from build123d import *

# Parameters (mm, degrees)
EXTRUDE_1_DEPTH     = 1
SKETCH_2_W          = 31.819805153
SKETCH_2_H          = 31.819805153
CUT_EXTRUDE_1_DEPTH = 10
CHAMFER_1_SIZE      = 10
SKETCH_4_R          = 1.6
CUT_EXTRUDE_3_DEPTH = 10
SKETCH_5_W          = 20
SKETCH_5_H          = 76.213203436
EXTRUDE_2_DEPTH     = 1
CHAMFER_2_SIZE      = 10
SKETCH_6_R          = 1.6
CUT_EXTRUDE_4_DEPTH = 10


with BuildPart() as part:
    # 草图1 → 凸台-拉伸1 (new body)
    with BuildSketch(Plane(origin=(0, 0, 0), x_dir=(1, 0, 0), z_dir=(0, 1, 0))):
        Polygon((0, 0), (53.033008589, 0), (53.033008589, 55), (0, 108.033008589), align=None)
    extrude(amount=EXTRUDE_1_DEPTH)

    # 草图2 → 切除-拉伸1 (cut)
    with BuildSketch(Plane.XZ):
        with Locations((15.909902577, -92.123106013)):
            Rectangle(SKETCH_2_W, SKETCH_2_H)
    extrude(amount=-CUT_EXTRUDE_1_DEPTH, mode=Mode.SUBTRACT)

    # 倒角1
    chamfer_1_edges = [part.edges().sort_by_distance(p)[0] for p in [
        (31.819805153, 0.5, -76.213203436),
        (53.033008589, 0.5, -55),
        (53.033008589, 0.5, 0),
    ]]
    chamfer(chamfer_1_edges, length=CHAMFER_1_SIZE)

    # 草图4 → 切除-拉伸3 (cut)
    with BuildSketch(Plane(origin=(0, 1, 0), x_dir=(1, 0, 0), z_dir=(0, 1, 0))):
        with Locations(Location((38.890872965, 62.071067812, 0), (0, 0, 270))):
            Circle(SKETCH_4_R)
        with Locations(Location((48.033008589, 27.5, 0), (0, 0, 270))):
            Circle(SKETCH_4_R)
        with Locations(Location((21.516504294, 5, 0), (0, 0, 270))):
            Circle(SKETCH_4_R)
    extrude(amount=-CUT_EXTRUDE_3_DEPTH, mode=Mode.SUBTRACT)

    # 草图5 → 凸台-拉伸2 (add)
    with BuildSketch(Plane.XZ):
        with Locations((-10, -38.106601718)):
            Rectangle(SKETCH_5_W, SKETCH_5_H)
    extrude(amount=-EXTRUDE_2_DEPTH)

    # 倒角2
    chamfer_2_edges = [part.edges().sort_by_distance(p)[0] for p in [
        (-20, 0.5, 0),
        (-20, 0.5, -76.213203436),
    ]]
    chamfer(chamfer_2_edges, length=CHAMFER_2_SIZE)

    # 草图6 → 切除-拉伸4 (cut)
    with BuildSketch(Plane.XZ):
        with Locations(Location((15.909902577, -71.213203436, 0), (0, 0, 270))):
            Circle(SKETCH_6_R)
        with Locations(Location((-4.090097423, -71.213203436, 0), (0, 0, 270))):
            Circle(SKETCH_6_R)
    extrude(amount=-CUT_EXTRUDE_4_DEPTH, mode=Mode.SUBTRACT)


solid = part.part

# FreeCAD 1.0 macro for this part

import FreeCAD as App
import Part
import Sketcher
from FreeCAD import Vector
Q = App.Units.Quantity


def edges_at(feature, points):
    """Names of the edges that pass closest to the given points."""
    edges = feature.Shape.Edges
    near = lambda p: min(range(len(edges)), key=lambda i: edges[i].distToShape(Part.Vertex(*p))[0])
    return sorted({f"Edge{near(p) + 1}" for p in points})

doc = App.newDocument("Part")
body = doc.addObject("PartDesign::Body", "Body")

sketch1 = body.newObject("Sketcher::SketchObject", "Sketch")
sketch1.AttachmentSupport = (doc.getObject("XZ_Plane"), [""])
sketch1.MapMode = "FlatFace"
sketch1.addGeometry(Part.LineSegment(Vector(0, 0, 0), Vector(53.033009, 0, 0)), False)
sketch1.addGeometry(Part.LineSegment(Vector(53.033009, 0, 0), Vector(53.033009, -55, 0)), False)
sketch1.addGeometry(Part.LineSegment(Vector(53.033009, -55, 0), Vector(0, -108.033009, 0)), False)
sketch1.addGeometry(Part.LineSegment(Vector(0, -108.033009, 0), Vector(0, 0, 0)), False)
sketch1.addConstraint(Sketcher.Constraint("Coincident", 0, 2, 1, 1))
sketch1.addConstraint(Sketcher.Constraint("Coincident", 1, 2, 2, 1))
sketch1.addConstraint(Sketcher.Constraint("Coincident", 2, 2, 3, 1))
sketch1.addConstraint(Sketcher.Constraint("Coincident", 3, 2, 0, 1))
sketch1.addConstraint(Sketcher.Constraint("Horizontal", 0))
sketch1.addConstraint(Sketcher.Constraint("Vertical", 1))
sketch1.addConstraint(Sketcher.Constraint("Vertical", 3))
sketch1.addConstraint(Sketcher.Constraint("Coincident", 3, 2, -1, 1))
sketch1.addConstraint(Sketcher.Constraint("DistanceY", 1, 2, 1, 1, 55.0))
sketch1.addConstraint(Sketcher.Constraint("Angle", 2, Q("-135 deg")))
sketch1.addConstraint(Sketcher.Constraint("Distance", 2, 75.0))
pad1 = body.newObject("PartDesign::Pad", "Pad")
pad1.Profile = sketch1
pad1.Length = 1
pad1.Reversed = True

sketch2 = body.newObject("Sketcher::SketchObject", "Sketch001")
sketch2.AttachmentSupport = (doc.getObject("XZ_Plane"), [""])
sketch2.MapMode = "FlatFace"
sketch2.addGeometry(Part.LineSegment(Vector(0, -76.213203, 0), Vector(0, -108.033009, 0)), False)
sketch2.addGeometry(Part.LineSegment(Vector(0, -108.033009, 0), Vector(31.819805, -108.033009, 0)), False)
sketch2.addGeometry(Part.LineSegment(Vector(31.819805, -108.033009, 0), Vector(31.819805, -76.213203, 0)), False)
sketch2.addGeometry(Part.LineSegment(Vector(31.819805, -76.213203, 0), Vector(0, -76.213203, 0)), False)
sketch2.addConstraint(Sketcher.Constraint("Coincident", 0, 2, 1, 1))
sketch2.addConstraint(Sketcher.Constraint("Coincident", 1, 2, 2, 1))
sketch2.addConstraint(Sketcher.Constraint("Coincident", 2, 2, 3, 1))
sketch2.addConstraint(Sketcher.Constraint("Coincident", 3, 2, 0, 1))
sketch2.addConstraint(Sketcher.Constraint("Vertical", 0))
sketch2.addConstraint(Sketcher.Constraint("Horizontal", 1))
sketch2.addConstraint(Sketcher.Constraint("Vertical", 2))
sketch2.addConstraint(Sketcher.Constraint("Horizontal", 3))
sketch2.addConstraint(Sketcher.Constraint("PointOnObject", 0, 2, -2))
sketch2.addConstraint(Sketcher.Constraint("Equal", 3, 0))
sketch2.addConstraint(Sketcher.Constraint("DistanceX", 1, 1, 1, 2, 31.819805))
sketch2.addConstraint(Sketcher.Constraint("DistanceY", 0, 2, -1, 1, 108.033009))
pocket1 = body.newObject("PartDesign::Pocket", "Pocket")
pocket1.Profile = sketch2
pocket1.Length = 10
doc.recompute()

chamfer = body.newObject("PartDesign::Chamfer", "Chamfer")
chamfer.Base = (pocket1, edges_at(pocket1, [(31.82, 0.5, -76.213), (53.033, 0.5, -55), (53.033, 0.5, 0)]))
chamfer.Size = 10

sketch3 = body.newObject("Sketcher::SketchObject", "Sketch002")
sketch3.AttachmentSupport = (doc.getObject("XZ_Plane"), [""])
sketch3.MapMode = "FlatFace"
sketch3.AttachmentOffset = App.Placement(Vector(0, 0, -1), App.Rotation())
sketch3.addGeometry(Part.Circle(Vector(38.890873, -62.071068, 0), Vector(0, 0, 1), 1.6), False)
sketch3.addGeometry(Part.Circle(Vector(48.033009, -27.5, 0), Vector(0, 0, 1), 1.6), False)
sketch3.addGeometry(Part.Circle(Vector(21.516504, -5, 0), Vector(0, 0, 1), 1.6), False)
sketch3.addConstraint(Sketcher.Constraint("Equal", 0, 1))
sketch3.addConstraint(Sketcher.Constraint("Equal", 1, 2))
sketch3.addConstraint(Sketcher.Constraint("Diameter", 0, 3.2))
sketch3.addConstraint(Sketcher.Constraint("DistanceY", 2, 3, -1, 1, 5.0))
sketch3.addConstraint(Sketcher.Constraint("DistanceY", 1, 3, -1, 1, 27.5))
sketch3.addConstraint(Sketcher.Constraint("DistanceX", -1, 1, 1, 3, 48.033009))
sketch3.addConstraint(Sketcher.Constraint("DistanceX", 2, 3, 0, 3, 17.374369))
sketch3.addConstraint(Sketcher.Constraint("DistanceX", -1, 1, 0, 3, 38.890873))
sketch3.addConstraint(Sketcher.Constraint("DistanceY", 0, 3, -1, 1, 62.071068))
pocket2 = body.newObject("PartDesign::Pocket", "Pocket001")
pocket2.Profile = sketch3
pocket2.Length = 10
pocket2.Reversed = True

sketch4 = body.newObject("Sketcher::SketchObject", "Sketch003")
sketch4.AttachmentSupport = (doc.getObject("XZ_Plane"), [""])
sketch4.MapMode = "FlatFace"
sketch4.addGeometry(Part.LineSegment(Vector(-20, 0, 0), Vector(-20, -76.213203, 0)), False)
sketch4.addGeometry(Part.LineSegment(Vector(-20, -76.213203, 0), Vector(0, -76.213203, 0)), False)
sketch4.addGeometry(Part.LineSegment(Vector(0, -76.213203, 0), Vector(0, 0, 0)), False)
sketch4.addGeometry(Part.LineSegment(Vector(0, 0, 0), Vector(-20, 0, 0)), False)
sketch4.addConstraint(Sketcher.Constraint("Coincident", 0, 2, 1, 1))
sketch4.addConstraint(Sketcher.Constraint("Coincident", 1, 2, 2, 1))
sketch4.addConstraint(Sketcher.Constraint("Coincident", 2, 2, 3, 1))
sketch4.addConstraint(Sketcher.Constraint("Coincident", 3, 2, 0, 1))
sketch4.addConstraint(Sketcher.Constraint("Vertical", 0))
sketch4.addConstraint(Sketcher.Constraint("Horizontal", 1))
sketch4.addConstraint(Sketcher.Constraint("Vertical", 2))
sketch4.addConstraint(Sketcher.Constraint("Horizontal", 3))
sketch4.addConstraint(Sketcher.Constraint("Coincident", 2, 2, -1, 1))
sketch4.addConstraint(Sketcher.Constraint("DistanceX", 1, 1, 1, 2, 20.0))
sketch4.addConstraint(Sketcher.Constraint("DistanceY", 0, 2, 0, 1, 76.213203))
pad2 = body.newObject("PartDesign::Pad", "Pad001")
pad2.Profile = sketch4
pad2.Length = 1
pad2.Reversed = True
doc.recompute()

chamfer2 = body.newObject("PartDesign::Chamfer", "Chamfer001")
chamfer2.Base = (pad2, edges_at(pad2, [(-20, 0.5, 0), (-20, 0.5, -76.213)]))
chamfer2.Size = 10

sketch5 = body.newObject("Sketcher::SketchObject", "Sketch004")
sketch5.AttachmentSupport = (doc.getObject("XZ_Plane"), [""])
sketch5.MapMode = "FlatFace"
sketch5.addGeometry(Part.Circle(Vector(15.909903, -71.213203, 0), Vector(0, 0, 1), 1.6), False)
sketch5.addGeometry(Part.Circle(Vector(-4.090097, -71.213203, 0), Vector(0, 0, 1), 1.6), False)
sketch5.addConstraint(Sketcher.Constraint("Equal", 0, 1))
sketch5.addConstraint(Sketcher.Constraint("Horizontal", 0, 3, 1, 3))
sketch5.addConstraint(Sketcher.Constraint("Diameter", 0, 3.2))
sketch5.addConstraint(Sketcher.Constraint("DistanceX", 1, 3, 0, 3, 20.0))
sketch5.addConstraint(Sketcher.Constraint("DistanceX", -1, 1, 0, 3, 15.909903))
sketch5.addConstraint(Sketcher.Constraint("DistanceY", 0, 3, -1, 1, 71.213203))
pocket3 = body.newObject("PartDesign::Pocket", "Pocket002")
pocket3.Profile = sketch5
pocket3.Length = 10

doc.recompute()
